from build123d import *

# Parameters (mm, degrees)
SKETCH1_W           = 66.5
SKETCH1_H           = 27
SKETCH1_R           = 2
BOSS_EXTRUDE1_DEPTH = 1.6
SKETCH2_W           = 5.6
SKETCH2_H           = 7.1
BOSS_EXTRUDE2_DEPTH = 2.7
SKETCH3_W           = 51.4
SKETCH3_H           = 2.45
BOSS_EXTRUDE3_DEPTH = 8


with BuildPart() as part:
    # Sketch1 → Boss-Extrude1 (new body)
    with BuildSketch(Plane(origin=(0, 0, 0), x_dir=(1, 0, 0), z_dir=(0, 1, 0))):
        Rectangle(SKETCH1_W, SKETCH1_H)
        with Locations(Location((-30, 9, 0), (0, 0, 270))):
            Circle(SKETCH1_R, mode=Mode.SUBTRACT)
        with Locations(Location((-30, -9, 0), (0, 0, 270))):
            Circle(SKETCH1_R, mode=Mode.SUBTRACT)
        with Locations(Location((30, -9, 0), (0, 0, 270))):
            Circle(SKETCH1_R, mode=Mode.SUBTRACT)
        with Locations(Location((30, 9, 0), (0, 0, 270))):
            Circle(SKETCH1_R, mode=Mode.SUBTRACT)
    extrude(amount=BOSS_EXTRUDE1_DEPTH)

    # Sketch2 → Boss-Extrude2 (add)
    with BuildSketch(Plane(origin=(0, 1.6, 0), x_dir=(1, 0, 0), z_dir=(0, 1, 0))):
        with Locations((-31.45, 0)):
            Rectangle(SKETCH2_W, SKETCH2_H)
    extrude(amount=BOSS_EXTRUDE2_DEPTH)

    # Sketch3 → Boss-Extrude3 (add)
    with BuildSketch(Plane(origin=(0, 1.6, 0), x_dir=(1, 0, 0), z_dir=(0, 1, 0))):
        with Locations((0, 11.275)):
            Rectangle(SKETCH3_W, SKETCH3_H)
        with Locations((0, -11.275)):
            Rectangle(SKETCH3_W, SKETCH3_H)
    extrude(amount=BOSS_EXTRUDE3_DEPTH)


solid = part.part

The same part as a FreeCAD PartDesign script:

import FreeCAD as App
import Part
import Sketcher

V = App.Vector

doc = App.newDocument("Part")
body = doc.addObject("PartDesign::Body", "Body")

# Sketch on XZ plane
sketch1 = doc.addObject("Sketcher::SketchObject", "Sketch")
body.addObject(sketch1)
sketch1.AttachmentSupport = (doc.XZ_Plane, [""])
sketch1.MapMode = "FlatFace"
sketch1.addGeometry([
    Part.LineSegment(V(-33.2, -13.5, 0), V(-33.2, 13.5, 0)),  # 0
    Part.LineSegment(V(-33.2, 13.5, 0), V(33.2, 13.5, 0)),  # 1
    Part.LineSegment(V(33.2, 13.5, 0), V(33.2, -13.5, 0)),  # 2
    Part.LineSegment(V(33.2, -13.5, 0), V(-33.2, -13.5, 0)),  # 3
    Part.Circle(V(-30, 9, 0), V(0, 0, 1), 2),  # 4
    Part.Circle(V(30, 9, 0), V(0, 0, 1), 2),  # 5
    Part.Circle(V(-30, -9, 0), V(0, 0, 1), 2),  # 6
    Part.Circle(V(30, -9, 0), V(0, 0, 1), 2),  # 7
], False)
sketch1.addConstraint([
    Sketcher.Constraint("Coincident", 0, 2, 1, 1),
    Sketcher.Constraint("Coincident", 1, 2, 2, 1),
    Sketcher.Constraint("Coincident", 2, 2, 3, 1),
    Sketcher.Constraint("Coincident", 3, 2, 0, 1),
    Sketcher.Constraint("Vertical", 0),
    Sketcher.Constraint("Horizontal", 1),
    Sketcher.Constraint("Vertical", 2),
    Sketcher.Constraint("Horizontal", 3),
    Sketcher.Constraint("Equal", 4, 5),
    Sketcher.Constraint("Equal", 5, 6),
    Sketcher.Constraint("Equal", 6, 7),
    Sketcher.Constraint("Symmetric", 5, 3, 6, 3, -1, 1),
    Sketcher.Constraint("Symmetric", 4, 3, 7, 3, -1, 1),
    Sketcher.Constraint("Symmetric", 0, 2, 2, 2, -1, 1),
    Sketcher.Constraint("Symmetric", 4, 3, 5, 3, -2),
    Sketcher.Constraint("Diameter", 4, 4.0),
    Sketcher.Constraint("DistanceY", 0, 1, 0, 2, 27.0),
    Sketcher.Constraint("DistanceX", 1, 1, 1, 2, 66.5),
    Sketcher.Constraint("DistanceX", 4, 3, -1, 1, 30.0),
    Sketcher.Constraint("DistanceY", -1, 1, 4, 3, 9.0),
])
pad1 = doc.addObject("PartDesign::Pad", "Pad")
body.addObject(pad1)
pad1.Profile = sketch1
pad1.Length = 1.6
pad1.Reversed = True

# Sketch on XZ plane
sketch2 = doc.addObject("Sketcher::SketchObject", "Sketch001")
body.addObject(sketch2)
sketch2.AttachmentSupport = (doc.XZ_Plane, [""])
sketch2.MapMode = "FlatFace"
sketch2.AttachmentOffset = App.Placement(V(0, 0, -1.6), App.Rotation())
sketch2.addGeometry([
    Part.LineSegment(V(-34, -4, 0), V(-34, 4, 0)),
    Part.LineSegment(V(-34, 4, 0), V(-29, 4, 0)),
    Part.LineSegment(V(-29, 4, 0), V(-29, -4, 0)),
    Part.LineSegment(V(-29, -4, 0), V(-34, -4, 0)),
], False)
sketch2.addConstraint([
    Sketcher.Constraint("Coincident", 0, 2, 1, 1),
    Sketcher.Constraint("Coincident", 1, 2, 2, 1),
    Sketcher.Constraint("Coincident", 2, 2, 3, 1),
    Sketcher.Constraint("Coincident", 3, 2, 0, 1),
    Sketcher.Constraint("Vertical", 0),
    Sketcher.Constraint("Horizontal", 1),
    Sketcher.Constraint("Vertical", 2),
    Sketcher.Constraint("Horizontal", 3),
    Sketcher.Constraint("DistanceX", 1, 1, 1, 2, 5.6),
    Sketcher.Constraint("DistanceY", 0, 1, 0, 2, 7.1),
    Sketcher.Constraint("DistanceX", 0, 2, -1, 1, 34.25),
    Sketcher.Constraint("DistanceY", -1, 1, 0, 2, 3.55),
])
pad2 = doc.addObject("PartDesign::Pad", "Pad001")
body.addObject(pad2)
pad2.Profile = sketch2
pad2.Length = 2.7
pad2.Reversed = True

# Sketch on XZ plane
sketch3 = doc.addObject("Sketcher::SketchObject", "Sketch002")
body.addObject(sketch3)
sketch3.AttachmentSupport = (doc.XZ_Plane, [""])
sketch3.MapMode = "FlatFace"
sketch3.AttachmentOffset = App.Placement(V(0, 0, -1.6), App.Rotation())
sketch3.addGeometry([
    Part.LineSegment(V(-25.7, -12.5, 0), V(-25.7, -10.1, 0)),  # 0
    Part.LineSegment(V(-25.7, -10.1, 0), V(25.7, -10.1, 0)),  # 1
    Part.LineSegment(V(25.7, -10.1, 0), V(25.7, -12.5, 0)),  # 2
    Part.LineSegment(V(25.7, -12.5, 0), V(-25.7, -12.5, 0)),  # 3
    Part.LineSegment(V(-25.7, 10.1, 0), V(-25.7, 12.5, 0)),  # 4
    Part.LineSegment(V(-25.7, 12.5, 0), V(25.7, 12.5, 0)),  # 5
    Part.LineSegment(V(25.7, 12.5, 0), V(25.7, 10.1, 0)),  # 6
    Part.LineSegment(V(25.7, 10.1, 0), V(-25.7, 10.1, 0)),  # 7
], False)
sketch3.addConstraint([
    Sketcher.Constraint("Coincident", 0, 2, 1, 1),
    Sketcher.Constraint("Coincident", 1, 2, 2, 1),
    Sketcher.Constraint("Coincident", 2, 2, 3, 1),
    Sketcher.Constraint("Coincident", 3, 2, 0, 1),
    Sketcher.Constraint("Coincident", 4, 2, 5, 1),
    Sketcher.Constraint("Coincident", 5, 2, 6, 1),
    Sketcher.Constraint("Coincident", 6, 2, 7, 1),
    Sketcher.Constraint("Coincident", 7, 2, 4, 1),
    Sketcher.Constraint("Vertical", 0),
    Sketcher.Constraint("Horizontal", 1),
    Sketcher.Constraint("Vertical", 2),
    Sketcher.Constraint("Horizontal", 3),
    Sketcher.Constraint("Vertical", 4),
    Sketcher.Constraint("Horizontal", 5),
    Sketcher.Constraint("Vertical", 6),
    Sketcher.Constraint("Horizontal", 7),
    Sketcher.Constraint("Symmetric", 2, 2, 4, 2, -1, 1),
    Sketcher.Constraint("Symmetric", 0, 2, 6, 2, -1, 1),
    Sketcher.Constraint("Vertical", 3, 2, 4, 2),
    Sketcher.Constraint("DistanceX", 1, 1, 1, 2, 51.4),
    Sketcher.Constraint("DistanceY", 3, 2, 4, 2, 25.0),
    Sketcher.Constraint("DistanceY", 0, 1, 0, 2, 2.45),
])
pad3 = doc.addObject("PartDesign::Pad", "Pad002")
body.addObject(pad3)
pad3.Profile = sketch3
pad3.Length = 8
pad3.Reversed = True

doc.recompute()
